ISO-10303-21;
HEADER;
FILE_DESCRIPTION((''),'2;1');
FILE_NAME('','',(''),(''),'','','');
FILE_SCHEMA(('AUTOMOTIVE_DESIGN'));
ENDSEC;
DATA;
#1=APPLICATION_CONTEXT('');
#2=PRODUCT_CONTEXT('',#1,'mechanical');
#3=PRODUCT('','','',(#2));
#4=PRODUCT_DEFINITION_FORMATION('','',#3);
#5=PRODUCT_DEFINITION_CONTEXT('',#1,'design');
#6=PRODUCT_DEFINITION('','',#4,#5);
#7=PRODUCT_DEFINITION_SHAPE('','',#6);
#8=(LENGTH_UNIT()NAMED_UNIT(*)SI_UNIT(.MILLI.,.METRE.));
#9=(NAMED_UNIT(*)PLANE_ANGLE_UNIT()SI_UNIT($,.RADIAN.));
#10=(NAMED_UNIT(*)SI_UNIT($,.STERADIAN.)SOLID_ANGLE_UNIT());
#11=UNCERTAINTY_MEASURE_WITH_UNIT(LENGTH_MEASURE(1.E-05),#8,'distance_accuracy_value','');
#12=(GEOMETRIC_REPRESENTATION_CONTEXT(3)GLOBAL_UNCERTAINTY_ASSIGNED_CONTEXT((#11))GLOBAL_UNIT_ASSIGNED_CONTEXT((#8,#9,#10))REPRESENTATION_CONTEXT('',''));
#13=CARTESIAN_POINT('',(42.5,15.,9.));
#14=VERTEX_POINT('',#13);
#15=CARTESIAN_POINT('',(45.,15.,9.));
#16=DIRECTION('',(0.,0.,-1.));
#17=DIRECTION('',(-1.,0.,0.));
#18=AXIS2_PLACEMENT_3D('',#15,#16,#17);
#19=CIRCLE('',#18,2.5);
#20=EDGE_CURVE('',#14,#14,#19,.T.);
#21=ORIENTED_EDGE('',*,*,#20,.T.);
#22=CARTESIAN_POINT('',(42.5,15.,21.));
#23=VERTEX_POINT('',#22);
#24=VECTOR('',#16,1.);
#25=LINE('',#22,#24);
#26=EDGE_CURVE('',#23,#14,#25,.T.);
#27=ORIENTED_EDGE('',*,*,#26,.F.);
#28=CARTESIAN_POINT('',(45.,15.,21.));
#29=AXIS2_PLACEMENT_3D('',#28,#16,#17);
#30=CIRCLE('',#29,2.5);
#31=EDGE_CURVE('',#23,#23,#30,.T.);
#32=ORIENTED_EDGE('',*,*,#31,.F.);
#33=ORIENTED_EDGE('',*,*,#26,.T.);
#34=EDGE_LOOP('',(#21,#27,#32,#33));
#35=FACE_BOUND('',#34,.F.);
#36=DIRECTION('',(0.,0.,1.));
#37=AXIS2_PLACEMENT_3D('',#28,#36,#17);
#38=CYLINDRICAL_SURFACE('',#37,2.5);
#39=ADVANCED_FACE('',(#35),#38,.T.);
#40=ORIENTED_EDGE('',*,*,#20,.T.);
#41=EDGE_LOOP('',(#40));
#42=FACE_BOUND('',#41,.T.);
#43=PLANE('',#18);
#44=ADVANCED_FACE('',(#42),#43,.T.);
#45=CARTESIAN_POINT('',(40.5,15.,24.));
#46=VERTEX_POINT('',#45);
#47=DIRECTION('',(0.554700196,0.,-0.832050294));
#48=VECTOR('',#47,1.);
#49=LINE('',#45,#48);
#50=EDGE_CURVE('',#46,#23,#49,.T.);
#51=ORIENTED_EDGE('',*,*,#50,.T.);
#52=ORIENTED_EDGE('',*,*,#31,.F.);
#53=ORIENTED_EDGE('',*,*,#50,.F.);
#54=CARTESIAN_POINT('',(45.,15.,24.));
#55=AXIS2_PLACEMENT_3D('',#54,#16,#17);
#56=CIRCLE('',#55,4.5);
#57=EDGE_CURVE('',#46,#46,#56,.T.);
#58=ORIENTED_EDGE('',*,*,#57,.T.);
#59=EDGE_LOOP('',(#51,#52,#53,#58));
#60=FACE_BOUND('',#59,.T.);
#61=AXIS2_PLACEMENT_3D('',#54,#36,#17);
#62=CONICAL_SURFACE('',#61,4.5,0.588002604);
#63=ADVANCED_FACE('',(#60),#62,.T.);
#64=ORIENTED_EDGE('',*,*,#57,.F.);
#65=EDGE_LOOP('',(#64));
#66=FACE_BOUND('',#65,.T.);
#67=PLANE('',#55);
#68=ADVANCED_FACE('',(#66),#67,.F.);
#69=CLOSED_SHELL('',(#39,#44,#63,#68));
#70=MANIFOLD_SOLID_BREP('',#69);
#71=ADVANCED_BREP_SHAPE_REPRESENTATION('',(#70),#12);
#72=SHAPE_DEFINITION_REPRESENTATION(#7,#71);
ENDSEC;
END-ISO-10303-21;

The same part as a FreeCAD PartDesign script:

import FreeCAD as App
import Part
import Sketcher
Q = App.Units.Quantity


def add_polygon(sketch, points):
    """Adds a closed chain of lines whose ends are joined by coincident constraints."""
    first, n = sketch.GeometryCount, len(points)
    for a, b in zip(points, points[1:] + points[:1]):
        sketch.addGeometry(Part.LineSegment(App.Vector(*a, 0), App.Vector(*b, 0)), False)
    for i in range(n):
        sketch.addConstraint(Sketcher.Constraint("Coincident", first + i, 2, first + (i + 1) % n, 1))

doc = App.newDocument("Part")
body = doc.addObject("PartDesign::Body", "Body")

# Sketch on XZ plane
sketch1 = body.newObject("Sketcher::SketchObject", "Sketch")
sketch1.AttachmentSupport = (doc.getObject("XZ_Plane"), [""])
sketch1.MapMode = "FlatFace"
add_polygon(sketch1, [(0, -3), (4.5, -3), (2.5, 0), (0, 0)])  # lines 0-3
sketch1.addConstraint([
    Sketcher.Constraint("Horizontal", 0),
    Sketcher.Constraint("Horizontal", 2),
    Sketcher.Constraint("Vertical", 3),
    Sketcher.Constraint("Coincident", 2, 2, -1, 1),
    Sketcher.Constraint("DistanceY", 3, 2, 3, 1, Q("3 mm")),
    Sketcher.Constraint("DistanceX", 0, 1, 0, 2, Q("4.5 mm")),
    Sketcher.Constraint("DistanceX", 2, 2, 2, 1, Q("2.5 mm")),
])
revolution = body.newObject("PartDesign::Revolution", "Revolution")
revolution.Profile = sketch1
revolution.ReferenceAxis = (sketch1, ["V_Axis"])
revolution.Angle = 360
body2 = doc.addObject("PartDesign::Body", "Body001")

# Sketch on XY plane
sketch2 = body2.newObject("Sketcher::SketchObject", "Sketch001")
sketch2.AttachmentSupport = (doc.getObject("XY_Plane001"), [""])
sketch2.MapMode = "FlatFace"
sketch2.addGeometry(Part.Circle(App.Vector(0, 0, 0), App.Vector(0, 0, 1), 2.5), False)
sketch2.addConstraint([
    Sketcher.Constraint("Coincident", 0, 3, -1, 1),
    Sketcher.Constraint("Diameter", 0, Q("5 mm")),
])
pad1 = body2.newObject("PartDesign::Pad", "Pad")
pad1.Profile = sketch2
pad1.Length = 12
doc.recompute()

boolean = body2.newObject("PartDesign::Boolean", "Boolean")
boolean.Type = "Fuse"
boolean.addObjects([body])
body3 = doc.addObject("PartDesign::Body", "Body002")
doc.recompute()

body2.Placement = App.Placement(App.Vector(45, 15, 21), App.Rotation(App.Vector(0, 1, 0), 180))
boolean2 = body3.newObject("PartDesign::Boolean", "Boolean001")
boolean2.Type = "Fuse"
boolean2.addObjects([body2])

doc.recompute()
